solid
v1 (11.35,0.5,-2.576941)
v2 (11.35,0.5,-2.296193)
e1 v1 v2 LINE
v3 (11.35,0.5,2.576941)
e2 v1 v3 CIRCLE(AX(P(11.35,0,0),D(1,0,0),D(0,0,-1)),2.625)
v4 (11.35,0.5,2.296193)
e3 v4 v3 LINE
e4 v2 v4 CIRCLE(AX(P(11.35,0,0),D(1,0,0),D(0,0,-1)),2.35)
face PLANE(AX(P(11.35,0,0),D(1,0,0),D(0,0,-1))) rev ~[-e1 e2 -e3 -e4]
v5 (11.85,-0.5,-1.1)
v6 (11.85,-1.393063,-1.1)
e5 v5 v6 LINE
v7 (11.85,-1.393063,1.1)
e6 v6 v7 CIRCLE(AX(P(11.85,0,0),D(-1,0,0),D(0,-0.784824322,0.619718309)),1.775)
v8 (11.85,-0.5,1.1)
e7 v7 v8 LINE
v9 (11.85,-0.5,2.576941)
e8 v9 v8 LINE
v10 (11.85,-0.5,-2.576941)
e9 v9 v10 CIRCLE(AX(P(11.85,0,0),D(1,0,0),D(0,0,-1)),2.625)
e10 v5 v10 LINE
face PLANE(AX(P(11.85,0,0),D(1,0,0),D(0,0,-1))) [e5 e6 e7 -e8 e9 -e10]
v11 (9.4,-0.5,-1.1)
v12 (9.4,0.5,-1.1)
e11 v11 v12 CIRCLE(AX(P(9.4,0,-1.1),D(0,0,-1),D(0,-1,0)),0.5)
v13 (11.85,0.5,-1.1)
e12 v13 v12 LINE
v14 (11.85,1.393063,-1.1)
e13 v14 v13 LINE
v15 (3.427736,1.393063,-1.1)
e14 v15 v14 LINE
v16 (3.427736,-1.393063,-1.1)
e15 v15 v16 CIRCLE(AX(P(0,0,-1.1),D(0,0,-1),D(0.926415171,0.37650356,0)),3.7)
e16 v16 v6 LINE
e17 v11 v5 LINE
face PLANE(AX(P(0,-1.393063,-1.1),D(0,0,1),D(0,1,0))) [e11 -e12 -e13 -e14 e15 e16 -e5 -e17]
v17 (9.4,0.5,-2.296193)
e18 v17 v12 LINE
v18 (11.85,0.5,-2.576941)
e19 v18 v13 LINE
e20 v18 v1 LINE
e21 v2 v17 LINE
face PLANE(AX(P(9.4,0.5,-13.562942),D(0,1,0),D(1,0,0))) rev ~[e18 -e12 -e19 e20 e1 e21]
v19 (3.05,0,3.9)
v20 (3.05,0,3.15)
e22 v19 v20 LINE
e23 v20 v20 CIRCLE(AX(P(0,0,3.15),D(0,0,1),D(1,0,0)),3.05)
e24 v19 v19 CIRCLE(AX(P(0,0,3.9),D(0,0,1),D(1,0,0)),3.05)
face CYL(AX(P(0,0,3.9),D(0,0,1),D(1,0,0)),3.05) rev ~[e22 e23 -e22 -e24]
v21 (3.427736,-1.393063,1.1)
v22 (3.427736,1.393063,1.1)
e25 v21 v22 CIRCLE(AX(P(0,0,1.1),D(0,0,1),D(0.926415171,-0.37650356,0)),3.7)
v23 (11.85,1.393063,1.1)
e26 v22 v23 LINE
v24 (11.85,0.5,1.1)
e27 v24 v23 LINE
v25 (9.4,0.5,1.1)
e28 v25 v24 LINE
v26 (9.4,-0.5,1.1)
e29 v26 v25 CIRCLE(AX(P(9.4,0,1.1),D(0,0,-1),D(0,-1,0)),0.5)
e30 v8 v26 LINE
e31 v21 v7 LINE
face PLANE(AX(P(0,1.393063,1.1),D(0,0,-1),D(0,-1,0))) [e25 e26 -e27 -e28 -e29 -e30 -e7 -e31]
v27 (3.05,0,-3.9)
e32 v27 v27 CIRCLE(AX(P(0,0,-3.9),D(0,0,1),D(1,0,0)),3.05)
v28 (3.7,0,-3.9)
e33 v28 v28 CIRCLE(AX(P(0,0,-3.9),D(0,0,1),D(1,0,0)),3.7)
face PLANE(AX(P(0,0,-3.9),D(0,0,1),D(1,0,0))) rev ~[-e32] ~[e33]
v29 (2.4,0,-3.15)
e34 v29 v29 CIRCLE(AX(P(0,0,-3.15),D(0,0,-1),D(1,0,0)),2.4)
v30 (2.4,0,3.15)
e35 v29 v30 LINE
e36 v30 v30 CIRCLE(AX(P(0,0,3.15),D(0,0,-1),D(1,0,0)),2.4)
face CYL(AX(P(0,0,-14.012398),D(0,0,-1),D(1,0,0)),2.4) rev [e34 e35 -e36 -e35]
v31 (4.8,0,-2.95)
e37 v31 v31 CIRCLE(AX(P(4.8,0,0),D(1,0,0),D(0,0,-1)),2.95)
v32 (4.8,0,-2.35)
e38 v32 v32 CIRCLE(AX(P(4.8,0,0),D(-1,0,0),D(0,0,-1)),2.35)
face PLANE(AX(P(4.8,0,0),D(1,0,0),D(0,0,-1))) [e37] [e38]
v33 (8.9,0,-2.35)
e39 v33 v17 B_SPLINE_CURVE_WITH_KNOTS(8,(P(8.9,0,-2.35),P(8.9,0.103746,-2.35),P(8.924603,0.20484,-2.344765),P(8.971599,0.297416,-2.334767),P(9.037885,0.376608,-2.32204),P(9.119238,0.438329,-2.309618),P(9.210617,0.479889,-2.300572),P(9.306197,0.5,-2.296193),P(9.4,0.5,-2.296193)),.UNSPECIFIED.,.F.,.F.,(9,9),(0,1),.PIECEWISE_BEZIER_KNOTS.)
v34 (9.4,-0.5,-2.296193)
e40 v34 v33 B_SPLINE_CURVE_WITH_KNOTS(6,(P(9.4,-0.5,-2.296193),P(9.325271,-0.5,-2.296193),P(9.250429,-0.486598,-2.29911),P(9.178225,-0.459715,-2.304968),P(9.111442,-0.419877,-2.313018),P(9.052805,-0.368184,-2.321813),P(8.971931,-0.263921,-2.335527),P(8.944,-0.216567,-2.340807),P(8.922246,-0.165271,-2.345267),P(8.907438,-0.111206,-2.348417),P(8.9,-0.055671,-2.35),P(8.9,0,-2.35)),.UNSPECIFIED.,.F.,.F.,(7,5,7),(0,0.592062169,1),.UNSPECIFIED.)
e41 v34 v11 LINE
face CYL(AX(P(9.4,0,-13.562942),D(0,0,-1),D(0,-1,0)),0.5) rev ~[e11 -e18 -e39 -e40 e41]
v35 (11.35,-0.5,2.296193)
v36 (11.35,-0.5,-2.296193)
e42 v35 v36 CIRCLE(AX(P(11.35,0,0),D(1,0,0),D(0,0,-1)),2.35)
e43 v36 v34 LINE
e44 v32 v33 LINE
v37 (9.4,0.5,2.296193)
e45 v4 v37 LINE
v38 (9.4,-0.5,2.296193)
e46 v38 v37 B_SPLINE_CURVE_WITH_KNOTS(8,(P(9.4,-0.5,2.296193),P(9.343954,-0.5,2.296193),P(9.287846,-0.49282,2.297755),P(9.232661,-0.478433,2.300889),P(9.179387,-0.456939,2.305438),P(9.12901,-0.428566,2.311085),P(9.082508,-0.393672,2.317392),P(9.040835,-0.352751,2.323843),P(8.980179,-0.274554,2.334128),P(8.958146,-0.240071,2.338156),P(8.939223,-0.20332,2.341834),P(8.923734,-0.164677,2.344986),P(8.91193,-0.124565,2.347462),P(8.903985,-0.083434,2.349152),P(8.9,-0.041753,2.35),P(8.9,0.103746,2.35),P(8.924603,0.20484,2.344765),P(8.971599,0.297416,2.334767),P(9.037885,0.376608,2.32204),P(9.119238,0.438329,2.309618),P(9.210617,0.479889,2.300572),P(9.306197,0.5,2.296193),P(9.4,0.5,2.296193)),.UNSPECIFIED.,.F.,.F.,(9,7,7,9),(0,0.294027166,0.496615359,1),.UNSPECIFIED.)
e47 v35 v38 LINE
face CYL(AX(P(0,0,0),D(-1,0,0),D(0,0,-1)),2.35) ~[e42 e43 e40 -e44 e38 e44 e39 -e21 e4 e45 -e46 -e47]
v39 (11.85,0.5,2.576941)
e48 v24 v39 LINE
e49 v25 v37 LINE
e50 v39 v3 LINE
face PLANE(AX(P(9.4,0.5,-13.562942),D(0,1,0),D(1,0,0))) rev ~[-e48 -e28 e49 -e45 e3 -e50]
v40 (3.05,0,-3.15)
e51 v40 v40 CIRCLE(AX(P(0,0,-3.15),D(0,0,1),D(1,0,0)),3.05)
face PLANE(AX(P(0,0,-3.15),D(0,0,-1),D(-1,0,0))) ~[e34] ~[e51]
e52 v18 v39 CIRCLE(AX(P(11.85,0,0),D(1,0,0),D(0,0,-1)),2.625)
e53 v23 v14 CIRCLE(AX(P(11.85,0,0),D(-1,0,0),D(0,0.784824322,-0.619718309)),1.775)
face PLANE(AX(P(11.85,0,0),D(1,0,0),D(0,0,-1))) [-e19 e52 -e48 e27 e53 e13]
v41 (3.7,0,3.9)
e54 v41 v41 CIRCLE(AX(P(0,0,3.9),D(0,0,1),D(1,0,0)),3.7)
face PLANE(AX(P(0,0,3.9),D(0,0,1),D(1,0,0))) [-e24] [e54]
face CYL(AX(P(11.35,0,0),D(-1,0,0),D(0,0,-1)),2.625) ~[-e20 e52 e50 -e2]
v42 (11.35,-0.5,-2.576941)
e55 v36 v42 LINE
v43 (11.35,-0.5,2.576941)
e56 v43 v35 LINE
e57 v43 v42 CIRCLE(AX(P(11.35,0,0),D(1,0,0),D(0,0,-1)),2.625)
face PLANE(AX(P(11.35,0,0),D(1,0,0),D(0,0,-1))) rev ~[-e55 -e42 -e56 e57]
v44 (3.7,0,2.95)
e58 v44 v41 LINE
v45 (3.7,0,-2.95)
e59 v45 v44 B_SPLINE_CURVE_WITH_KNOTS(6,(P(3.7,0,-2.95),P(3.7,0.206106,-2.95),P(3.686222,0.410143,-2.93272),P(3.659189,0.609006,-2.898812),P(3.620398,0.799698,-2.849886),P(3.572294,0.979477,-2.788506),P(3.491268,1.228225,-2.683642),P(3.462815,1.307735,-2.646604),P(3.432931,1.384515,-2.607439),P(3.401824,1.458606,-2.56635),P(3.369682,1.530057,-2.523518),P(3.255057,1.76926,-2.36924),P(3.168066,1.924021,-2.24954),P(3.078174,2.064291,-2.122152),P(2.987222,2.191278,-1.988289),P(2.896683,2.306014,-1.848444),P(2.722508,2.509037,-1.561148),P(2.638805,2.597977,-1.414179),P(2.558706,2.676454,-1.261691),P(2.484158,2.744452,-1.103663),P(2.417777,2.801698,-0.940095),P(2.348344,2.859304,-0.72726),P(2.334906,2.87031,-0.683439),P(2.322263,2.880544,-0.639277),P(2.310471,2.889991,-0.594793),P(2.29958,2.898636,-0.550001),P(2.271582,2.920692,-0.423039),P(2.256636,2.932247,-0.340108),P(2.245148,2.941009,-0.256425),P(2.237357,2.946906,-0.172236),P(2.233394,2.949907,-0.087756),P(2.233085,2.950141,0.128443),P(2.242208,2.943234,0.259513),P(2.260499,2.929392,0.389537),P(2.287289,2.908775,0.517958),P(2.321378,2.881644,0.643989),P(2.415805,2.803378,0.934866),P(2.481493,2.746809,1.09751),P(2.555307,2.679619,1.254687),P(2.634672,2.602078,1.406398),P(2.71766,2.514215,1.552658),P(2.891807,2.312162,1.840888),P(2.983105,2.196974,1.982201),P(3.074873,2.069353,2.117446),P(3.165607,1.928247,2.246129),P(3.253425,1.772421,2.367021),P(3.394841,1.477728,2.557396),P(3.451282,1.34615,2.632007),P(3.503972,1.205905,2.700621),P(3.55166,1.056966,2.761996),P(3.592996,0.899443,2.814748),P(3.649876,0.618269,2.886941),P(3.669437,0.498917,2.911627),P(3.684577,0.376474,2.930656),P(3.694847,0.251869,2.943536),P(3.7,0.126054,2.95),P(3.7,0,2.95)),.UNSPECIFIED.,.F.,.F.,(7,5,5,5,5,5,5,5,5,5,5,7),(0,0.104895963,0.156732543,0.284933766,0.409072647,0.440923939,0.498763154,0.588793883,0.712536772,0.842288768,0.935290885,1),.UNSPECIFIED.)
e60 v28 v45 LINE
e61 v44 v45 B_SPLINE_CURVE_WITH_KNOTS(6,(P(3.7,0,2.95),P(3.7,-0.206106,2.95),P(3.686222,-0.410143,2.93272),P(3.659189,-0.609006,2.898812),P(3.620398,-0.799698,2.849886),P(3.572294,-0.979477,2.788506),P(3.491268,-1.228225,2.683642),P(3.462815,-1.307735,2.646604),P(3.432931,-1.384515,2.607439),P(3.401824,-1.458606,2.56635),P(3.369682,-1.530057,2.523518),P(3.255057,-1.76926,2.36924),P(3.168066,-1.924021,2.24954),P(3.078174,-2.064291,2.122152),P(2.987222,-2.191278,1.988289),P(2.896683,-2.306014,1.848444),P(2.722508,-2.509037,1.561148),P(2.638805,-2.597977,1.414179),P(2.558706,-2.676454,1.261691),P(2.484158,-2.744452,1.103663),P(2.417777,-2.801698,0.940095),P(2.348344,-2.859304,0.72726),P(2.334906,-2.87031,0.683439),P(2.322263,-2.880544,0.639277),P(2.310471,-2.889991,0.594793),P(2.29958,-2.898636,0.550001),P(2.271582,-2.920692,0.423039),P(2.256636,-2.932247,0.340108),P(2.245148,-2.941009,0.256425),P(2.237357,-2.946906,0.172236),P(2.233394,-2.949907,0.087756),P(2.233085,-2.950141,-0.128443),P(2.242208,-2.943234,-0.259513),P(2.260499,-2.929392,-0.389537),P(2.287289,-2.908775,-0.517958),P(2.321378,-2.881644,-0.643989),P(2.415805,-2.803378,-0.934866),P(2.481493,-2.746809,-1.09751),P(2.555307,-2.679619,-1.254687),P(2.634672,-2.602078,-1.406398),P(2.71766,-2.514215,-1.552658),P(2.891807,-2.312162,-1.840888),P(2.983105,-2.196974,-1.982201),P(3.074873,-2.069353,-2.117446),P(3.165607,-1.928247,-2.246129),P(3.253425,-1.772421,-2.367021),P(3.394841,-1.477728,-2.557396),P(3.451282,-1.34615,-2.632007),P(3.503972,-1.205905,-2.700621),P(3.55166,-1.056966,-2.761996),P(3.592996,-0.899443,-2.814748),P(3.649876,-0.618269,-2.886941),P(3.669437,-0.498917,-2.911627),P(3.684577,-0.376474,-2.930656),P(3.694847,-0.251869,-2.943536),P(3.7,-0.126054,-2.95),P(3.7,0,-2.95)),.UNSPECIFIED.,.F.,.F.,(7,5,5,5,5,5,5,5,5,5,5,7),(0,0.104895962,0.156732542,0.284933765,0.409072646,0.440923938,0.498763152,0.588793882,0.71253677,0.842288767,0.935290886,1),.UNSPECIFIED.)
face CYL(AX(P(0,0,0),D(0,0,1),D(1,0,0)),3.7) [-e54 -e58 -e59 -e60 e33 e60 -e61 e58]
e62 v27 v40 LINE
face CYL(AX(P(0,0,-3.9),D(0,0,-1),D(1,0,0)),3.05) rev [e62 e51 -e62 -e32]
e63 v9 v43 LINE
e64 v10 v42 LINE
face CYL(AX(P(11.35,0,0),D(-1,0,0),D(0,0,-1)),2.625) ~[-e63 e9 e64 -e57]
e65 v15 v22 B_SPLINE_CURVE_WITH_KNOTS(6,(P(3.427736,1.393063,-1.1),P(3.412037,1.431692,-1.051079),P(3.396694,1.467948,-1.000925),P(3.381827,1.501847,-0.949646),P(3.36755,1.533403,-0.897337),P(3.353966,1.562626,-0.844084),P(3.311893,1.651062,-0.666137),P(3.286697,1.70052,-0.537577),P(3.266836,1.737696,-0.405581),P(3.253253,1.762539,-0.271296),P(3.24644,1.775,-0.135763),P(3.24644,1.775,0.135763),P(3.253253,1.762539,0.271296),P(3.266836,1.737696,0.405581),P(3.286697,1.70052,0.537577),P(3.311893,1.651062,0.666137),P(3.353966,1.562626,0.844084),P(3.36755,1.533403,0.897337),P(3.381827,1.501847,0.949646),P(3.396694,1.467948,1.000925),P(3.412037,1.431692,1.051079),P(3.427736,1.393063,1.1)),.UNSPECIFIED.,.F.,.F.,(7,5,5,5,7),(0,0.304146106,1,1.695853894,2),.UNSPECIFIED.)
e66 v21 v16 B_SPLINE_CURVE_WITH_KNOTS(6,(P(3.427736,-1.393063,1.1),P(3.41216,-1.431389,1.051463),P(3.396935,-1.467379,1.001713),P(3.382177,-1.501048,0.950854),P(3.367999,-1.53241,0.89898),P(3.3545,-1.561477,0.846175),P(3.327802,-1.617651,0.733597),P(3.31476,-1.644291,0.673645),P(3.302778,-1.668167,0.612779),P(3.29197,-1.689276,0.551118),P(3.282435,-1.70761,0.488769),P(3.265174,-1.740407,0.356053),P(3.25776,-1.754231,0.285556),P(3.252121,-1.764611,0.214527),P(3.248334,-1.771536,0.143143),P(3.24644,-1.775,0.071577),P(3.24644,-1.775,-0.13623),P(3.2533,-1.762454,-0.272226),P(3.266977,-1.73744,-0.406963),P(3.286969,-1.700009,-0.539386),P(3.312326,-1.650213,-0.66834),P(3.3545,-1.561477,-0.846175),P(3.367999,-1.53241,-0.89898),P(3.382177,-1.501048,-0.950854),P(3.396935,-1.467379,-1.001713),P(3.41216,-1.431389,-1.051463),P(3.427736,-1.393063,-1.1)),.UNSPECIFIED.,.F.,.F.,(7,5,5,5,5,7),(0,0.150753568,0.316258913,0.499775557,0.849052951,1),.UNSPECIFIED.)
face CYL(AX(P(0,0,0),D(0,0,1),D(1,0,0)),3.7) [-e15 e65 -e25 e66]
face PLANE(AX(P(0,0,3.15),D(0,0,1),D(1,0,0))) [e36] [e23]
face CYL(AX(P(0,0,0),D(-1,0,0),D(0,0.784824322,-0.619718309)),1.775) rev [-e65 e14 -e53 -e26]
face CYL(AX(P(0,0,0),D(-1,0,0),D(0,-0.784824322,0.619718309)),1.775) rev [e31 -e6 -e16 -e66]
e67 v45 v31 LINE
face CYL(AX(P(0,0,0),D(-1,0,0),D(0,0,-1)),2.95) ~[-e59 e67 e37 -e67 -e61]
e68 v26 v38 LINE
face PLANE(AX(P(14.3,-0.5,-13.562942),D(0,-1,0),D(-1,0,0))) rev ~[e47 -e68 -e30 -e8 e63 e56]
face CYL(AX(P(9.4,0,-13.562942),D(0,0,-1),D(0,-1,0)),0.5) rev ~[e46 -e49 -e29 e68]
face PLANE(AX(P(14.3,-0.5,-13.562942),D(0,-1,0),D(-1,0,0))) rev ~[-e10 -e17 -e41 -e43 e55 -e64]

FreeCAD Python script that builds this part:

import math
import FreeCAD as App
import Part
import Sketcher

doc = App.newDocument("Part")
body = doc.addObject("PartDesign::Body", "Body")

sketch1 = body.newObject("Sketcher::SketchObject", "Sketch")
sketch1.AttachmentSupport = (doc.getObject("YZ_Plane"), [""])
sketch1.MapMode = "FlatFace"
sketch1.addGeometry(Part.Circle(App.Vector(0, 0, 0), App.Vector(0, 0, 1), 2.4), False)
sketch1.addConstraint([
    Sketcher.Constraint("Coincident", 0, 3, -1, 1),
    Sketcher.Constraint("Diameter", 0, 4.7),
])
pad1 = body.newObject("PartDesign::Pad", "Pad")
pad1.Profile = sketch1
pad1.Length = 11.35

sketch2 = body.newObject("Sketcher::SketchObject", "Sketch001")
sketch2.AttachmentSupport = (doc.getObject("YZ_Plane"), [""])
sketch2.MapMode = "FlatFace"
sketch2.addGeometry(Part.Circle(App.Vector(0, 0, 0), App.Vector(0, 0, 1), 3), False)
sketch2.addConstraint([
    Sketcher.Constraint("Coincident", 0, 3, -1, 1),
    Sketcher.Constraint("Diameter", 0, 5.9),
])
pad2 = body.newObject("PartDesign::Pad", "Pad001")
pad2.Profile = sketch2
pad2.Length = 4.8

sketch3 = body.newObject("Sketcher::SketchObject", "Sketch002")
sketch3.AttachmentSupport = (doc.getObject("YZ_Plane"), [""])
sketch3.MapMode = "FlatFace"
sketch3.AttachmentOffset = App.Placement(App.Vector(0, 0, 11.35), App.Rotation())
sketch3.addGeometry(Part.Circle(App.Vector(0, 0, 0), App.Vector(0, 0, 1), 2.6), False)
sketch3.addConstraint([
    Sketcher.Constraint("Coincident", 0, 3, -1, 1),
    Sketcher.Constraint("Diameter", 0, 5.25),
])
pad3 = body.newObject("PartDesign::Pad", "Pad002")
pad3.Profile = sketch3
pad3.Length = 0.5

sketch4 = body.newObject("Sketcher::SketchObject", "Sketch003")
sketch4.AttachmentSupport = (doc.getObject("YZ_Plane"), [""])
sketch4.MapMode = "FlatFace"
sketch4.addGeometry([
    Part.ArcOfCircle(Part.Circle(App.Vector(0, 0, 0), App.Vector(0, 0, 1), 1.8), math.radians(142), math.radians(218)),
    Part.LineSegment(App.Vector(-1.4, -1.1, 0), App.Vector(1.4, -1.1, 0)),
    Part.ArcOfCircle(Part.Circle(App.Vector(0, 0, 0), App.Vector(0, 0, 1), 1.8), math.radians(-38), math.radians(38)),
    Part.LineSegment(App.Vector(1.4, 1.1, 0), App.Vector(-1.4, 1.1, 0)),
], False)
sketch4.addConstraint([
    Sketcher.Constraint("Coincident", 0, 2, 1, 1),
    Sketcher.Constraint("Coincident", 1, 2, 2, 1),
    Sketcher.Constraint("Coincident", 2, 2, 3, 1),
    Sketcher.Constraint("Coincident", 3, 2, 0, 1),
    Sketcher.Constraint("Horizontal", 1),
    Sketcher.Constraint("Horizontal", 3),
    Sketcher.Constraint("Coincident", 0, 3, -1, 1),
    Sketcher.Constraint("Coincident", 2, 3, -1, 1),
    Sketcher.Constraint("Equal", 0, 2),
    Sketcher.Constraint("Vertical", 1, 2, 2, 2),
    Sketcher.Constraint("Radius", 0, 1.775),
    Sketcher.Constraint("DistanceY", 0, 2, -1, 1, 1.1),
])
pocket1 = body.newObject("PartDesign::Pocket", "Pocket")
pocket1.Profile = sketch4
pocket1.Type = "ThroughAll"
pocket1.Reversed = True

sketch5 = body.newObject("Sketcher::SketchObject", "Sketch004")
sketch5.AttachmentSupport = (doc.getObject("XY_Plane"), [""])
sketch5.MapMode = "FlatFace"
sketch5.addGeometry([
    Part.LineSegment(App.Vector(9.4, -0.5, 0), App.Vector(14.3, -0.5, 0)),
    Part.ArcOfCircle(Part.Circle(App.Vector(14.3, 0, 0), App.Vector(0, 0, 1), 0.5), math.radians(-90), math.radians(90)),
    Part.LineSegment(App.Vector(14.3, 0.5, 0), App.Vector(9.4, 0.5, 0)),
    Part.ArcOfCircle(Part.Circle(App.Vector(9.4, 0, 0), App.Vector(0, 0, 1), 0.5), math.radians(90), math.radians(270)),
    Part.LineSegment(App.Vector(-14.3, -0.5, 0), App.Vector(-9.4, -0.5, 0)),
    Part.ArcOfCircle(Part.Circle(App.Vector(-9.4, 0, 0), App.Vector(0, 0, 1), 0.5), math.radians(-90), math.radians(90)),
    Part.LineSegment(App.Vector(-9.4, 0.5, 0), App.Vector(-14.3, 0.5, 0)),
    Part.ArcOfCircle(Part.Circle(App.Vector(-14.3, 0, 0), App.Vector(0, 0, 1), 0.5), math.radians(90), math.radians(270)),
], False)
sketch5.addConstraint([
    Sketcher.Constraint("Tangent", 0, 2, 1, 1),
    Sketcher.Constraint("Tangent", 1, 2, 2, 1),
    Sketcher.Constraint("Tangent", 2, 2, 3, 1),
    Sketcher.Constraint("Tangent", 3, 2, 0, 1),
    Sketcher.Constraint("Tangent", 4, 2, 5, 1),
    Sketcher.Constraint("Tangent", 5, 2, 6, 1),
    Sketcher.Constraint("Tangent", 6, 2, 7, 1),
    Sketcher.Constraint("Tangent", 7, 2, 4, 1),
    Sketcher.Constraint("Horizontal", 0),
    Sketcher.Constraint("Horizontal", 2),
    Sketcher.Constraint("Horizontal", 4),
    Sketcher.Constraint("Horizontal", 6),
    Sketcher.Constraint("Equal", 3, 5),
    Sketcher.Constraint("Symmetric", 3, 3, 5, 3, -1, 1),
    Sketcher.Constraint("Symmetric", 1, 3, 7, 3, -2),
    Sketcher.Constraint("Radius", 1, 0.5),
    Sketcher.Constraint("DistanceX", 0, 1, 0, 2, 4.9),
    Sketcher.Constraint("DistanceX", -1, 1, 1, 3, 14.3),
])
pocket2 = body.newObject("PartDesign::Pocket", "Pocket001")
pocket2.Profile = sketch5
pocket2.Type = "ThroughAll"
pocket2.Midplane = True

sketch6 = body.newObject("Sketcher::SketchObject", "Sketch005")
sketch6.AttachmentSupport = (doc.getObject("XY_Plane"), [""])
sketch6.MapMode = "FlatFace"
sketch6.addGeometry(Part.Circle(App.Vector(0, 0, 0), App.Vector(0, 0, 1), 3.7), False)
sketch6.addConstraint([
    Sketcher.Constraint("Coincident", 0, 3, -1, 1),
    Sketcher.Constraint("Diameter", 0, 7.4),
])
pad4 = body.newObject("PartDesign::Pad", "Pad003")
pad4.Profile = sketch6
pad4.Length = 7.8
pad4.Midplane = True

sketch7 = body.newObject("Sketcher::SketchObject", "Sketch006")
sketch7.AttachmentSupport = (doc.getObject("XY_Plane"), [""])
sketch7.MapMode = "FlatFace"
sketch7.addGeometry(Part.Circle(App.Vector(0, 0, 0), App.Vector(0, 0, 1), 2.4), False)
sketch7.addConstraint([
    Sketcher.Constraint("Coincident", 0, 3, -1, 1),
    Sketcher.Constraint("Diameter", 0, 4.8),
])
pocket3 = body.newObject("PartDesign::Pocket", "Pocket002")
pocket3.Profile = sketch7
pocket3.Type = "ThroughAll"
pocket3.Midplane = True

sketch8 = body.newObject("Sketcher::SketchObject", "Sketch007")
sketch8.AttachmentSupport = (doc.getObject("XY_Plane"), [""])
sketch8.MapMode = "FlatFace"
sketch8.AttachmentOffset = App.Placement(App.Vector(0, 0, 3.9), App.Rotation())
sketch8.addGeometry(Part.Circle(App.Vector(0, 0, 0), App.Vector(0, 0, 1), 3), False)
sketch8.addConstraint([
    Sketcher.Constraint("Coincident", 0, 3, -1, 1),
    Sketcher.Constraint("Diameter", 0, 6.1),
])
pocket4 = body.newObject("PartDesign::Pocket", "Pocket003")
pocket4.Profile = sketch8
pocket4.Length = 0.75
doc.recompute()

mirrored = body.newObject("PartDesign::Mirrored", "Mirrored")
mirrored.Originals = [pocket4]
mirrored.MirrorPlane = (doc.getObject("XY_Plane"), [""])
body.Tip = mirrored

doc.recompute()
